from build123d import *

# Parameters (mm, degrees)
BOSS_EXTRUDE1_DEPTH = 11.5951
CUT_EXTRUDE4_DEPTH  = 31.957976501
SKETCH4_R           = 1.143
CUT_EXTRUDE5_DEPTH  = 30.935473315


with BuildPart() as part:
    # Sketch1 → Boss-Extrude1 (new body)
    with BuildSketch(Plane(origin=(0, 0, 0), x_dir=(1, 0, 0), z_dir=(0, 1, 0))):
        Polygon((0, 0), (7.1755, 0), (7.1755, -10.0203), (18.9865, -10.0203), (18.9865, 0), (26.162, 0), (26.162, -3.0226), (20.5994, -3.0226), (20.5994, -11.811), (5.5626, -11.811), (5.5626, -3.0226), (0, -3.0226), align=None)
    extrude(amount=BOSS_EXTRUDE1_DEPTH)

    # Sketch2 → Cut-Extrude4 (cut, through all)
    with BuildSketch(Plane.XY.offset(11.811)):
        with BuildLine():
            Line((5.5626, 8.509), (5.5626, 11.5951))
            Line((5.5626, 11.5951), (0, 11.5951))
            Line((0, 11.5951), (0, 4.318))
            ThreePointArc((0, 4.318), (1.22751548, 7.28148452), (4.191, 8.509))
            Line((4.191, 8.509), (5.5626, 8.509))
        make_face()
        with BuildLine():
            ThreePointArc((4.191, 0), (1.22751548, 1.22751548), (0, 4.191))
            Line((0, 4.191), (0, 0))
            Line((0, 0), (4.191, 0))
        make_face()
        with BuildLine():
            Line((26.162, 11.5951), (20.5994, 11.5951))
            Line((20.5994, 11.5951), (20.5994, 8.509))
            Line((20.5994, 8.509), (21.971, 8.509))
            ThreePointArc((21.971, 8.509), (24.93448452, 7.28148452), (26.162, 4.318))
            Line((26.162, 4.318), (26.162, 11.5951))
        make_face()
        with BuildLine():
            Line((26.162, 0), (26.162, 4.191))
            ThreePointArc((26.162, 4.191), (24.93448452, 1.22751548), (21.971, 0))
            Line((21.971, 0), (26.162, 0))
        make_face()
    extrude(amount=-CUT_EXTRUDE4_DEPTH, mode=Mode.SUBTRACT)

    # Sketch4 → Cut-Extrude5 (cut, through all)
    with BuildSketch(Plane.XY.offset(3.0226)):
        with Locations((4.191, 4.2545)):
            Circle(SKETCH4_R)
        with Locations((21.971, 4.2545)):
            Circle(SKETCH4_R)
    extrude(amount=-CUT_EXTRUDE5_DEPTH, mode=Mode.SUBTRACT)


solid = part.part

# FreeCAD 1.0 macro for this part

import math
import FreeCAD as App
import Part
import Sketcher

V = App.Vector
Q = App.Units.Quantity

doc = App.newDocument("Part")
params = doc.addObject("Spreadsheet::Sheet", "Params")
for row, (alias, value) in enumerate([
    ("sketch1_width", "0.219 in"),
    ("sketch1_width2", "0.592 in"),
    ("sketch1_width3", "0.465 in"),
    ("sketch1_height", "0.119 in"),
    ("sketch1_height2", "0.346 in"),
    ("pad1_length", "0.4565 in"),
    ("sketch2_radius", "0.165 in"),
    ("sketch2_width", "0.219 in"),
    ("sketch3_diameter", "0.09 in"),
], start=1):
    params.set(f"A{row}", alias)
    params.set(f"B{row}", "=" + value)
    params.setAlias(f"B{row}", alias)

body = doc.addObject("PartDesign::Body", "Body")

sketch1 = body.newObject("Sketcher::SketchObject", "Sketch")
sketch1.AttachmentSupport = (doc.getObject("XZ_Plane"), [""])
sketch1.MapMode = "FlatFace"
sketch1.addGeometry(Part.LineSegment(V(7.2, 0, 0), V(0, 0, 0)), False)
sketch1.addGeometry(Part.LineSegment(V(0, 0, 0), V(0, 3, 0)), False)
sketch1.addGeometry(Part.LineSegment(V(0, 3, 0), V(5.6, 3, 0)), False)
sketch1.addGeometry(Part.LineSegment(V(5.6, 3, 0), V(5.6, 11.8, 0)), False)
sketch1.addGeometry(Part.LineSegment(V(5.6, 11.8, 0), V(20.6, 11.8, 0)), False)
sketch1.addGeometry(Part.LineSegment(V(20.6, 11.8, 0), V(20.6, 3, 0)), False)
sketch1.addGeometry(Part.LineSegment(V(20.6, 3, 0), V(26.2, 3, 0)), False)
sketch1.addGeometry(Part.LineSegment(V(26.2, 3, 0), V(26.2, 0, 0)), False)
sketch1.addGeometry(Part.LineSegment(V(26.2, 0, 0), V(19, 0, 0)), False)
sketch1.addGeometry(Part.LineSegment(V(19, 0, 0), V(19, 10, 0)), False)
sketch1.addGeometry(Part.LineSegment(V(19, 10, 0), V(7.2, 10, 0)), False)
sketch1.addGeometry(Part.LineSegment(V(7.2, 10, 0), V(7.2, 0, 0)), False)
sketch1.addConstraint(Sketcher.Constraint("Coincident", 0, 2, 1, 1))
sketch1.addConstraint(Sketcher.Constraint("Coincident", 1, 2, 2, 1))
sketch1.addConstraint(Sketcher.Constraint("Coincident", 2, 2, 3, 1))
sketch1.addConstraint(Sketcher.Constraint("Coincident", 3, 2, 4, 1))
sketch1.addConstraint(Sketcher.Constraint("Coincident", 4, 2, 5, 1))
sketch1.addConstraint(Sketcher.Constraint("Coincident", 5, 2, 6, 1))
sketch1.addConstraint(Sketcher.Constraint("Coincident", 6, 2, 7, 1))
sketch1.addConstraint(Sketcher.Constraint("Coincident", 7, 2, 8, 1))
sketch1.addConstraint(Sketcher.Constraint("Coincident", 8, 2, 9, 1))
sketch1.addConstraint(Sketcher.Constraint("Coincident", 9, 2, 10, 1))
sketch1.addConstraint(Sketcher.Constraint("Coincident", 10, 2, 11, 1))
sketch1.addConstraint(Sketcher.Constraint("Coincident", 11, 2, 0, 1))
sketch1.addConstraint(Sketcher.Constraint("Horizontal", 0))
sketch1.addConstraint(Sketcher.Constraint("Vertical", 1))
sketch1.addConstraint(Sketcher.Constraint("Horizontal", 2))
sketch1.addConstraint(Sketcher.Constraint("Vertical", 3))
sketch1.addConstraint(Sketcher.Constraint("Horizontal", 4))
sketch1.addConstraint(Sketcher.Constraint("Vertical", 5))
sketch1.addConstraint(Sketcher.Constraint("Horizontal", 6))
sketch1.addConstraint(Sketcher.Constraint("Vertical", 7))
sketch1.addConstraint(Sketcher.Constraint("Horizontal", 8))
sketch1.addConstraint(Sketcher.Constraint("Vertical", 9))
sketch1.addConstraint(Sketcher.Constraint("Horizontal", 10))
sketch1.addConstraint(Sketcher.Constraint("Vertical", 11))
sketch1.addConstraint(Sketcher.Constraint("Coincident", 0, 2, -1, 1))
sketch1.addConstraint(Sketcher.Constraint("PointOnObject", 7, 2, -1))
sketch1.addConstraint(Sketcher.Constraint("Horizontal", 2, 2, 5, 2))
sketch1.addConstraint(Sketcher.Constraint("Equal", 2, 6))
sketch1.addConstraint(Sketcher.Constraint("Equal", 0, 8))
sketch1.addConstraint(Sketcher.Constraint("DistanceX", 2, 1, 2, 2, Q("0.219 in")))
sketch1.addConstraint(Sketcher.Constraint("DistanceX", 4, 1, 4, 2, Q("0.592 in")))
sketch1.addConstraint(Sketcher.Constraint("DistanceX", 10, 2, 10, 1, Q("0.465 in")))
sketch1.addConstraint(Sketcher.Constraint("DistanceY", 1, 1, 1, 2, Q("0.119 in")))
sketch1.addConstraint(Sketcher.Constraint("DistanceY", 3, 1, 3, 2, Q("0.346 in")))
sketch1.addConstraint(Sketcher.Constraint("DistanceY", 9, 1, 9, 2, Q("0.3945 in")))
sketch1.setExpression("Constraints[29]", "Params.sketch1_width")
sketch1.setExpression("Constraints[30]", "Params.sketch1_width2")
sketch1.setExpression("Constraints[31]", "Params.sketch1_width3")
sketch1.setExpression("Constraints[32]", "Params.sketch1_height")
sketch1.setExpression("Constraints[33]", "Params.sketch1_height2")
pad1 = body.newObject("PartDesign::Pad", "Pad")
pad1.Profile = sketch1
pad1.setExpression("Length", "Params.pad1_length")
pad1.Reversed = True

sketch2 = body.newObject("Sketcher::SketchObject", "Sketch001")
sketch2.AttachmentSupport = (doc.getObject("XY_Plane"), [""])
sketch2.MapMode = "FlatFace"
sketch2.AttachmentOffset = App.Placement(V(0, 0, 0.465 * 25.4), App.Rotation())
sketch2.addGeometry(Part.LineSegment(V(5.6, 8.5, 0), V(5.6, 11.6, 0)), False)
sketch2.addGeometry(Part.LineSegment(V(5.6, 11.6, 0), V(0, 11.6, 0)), False)
sketch2.addGeometry(Part.LineSegment(V(0, 11.6, 0), V(0, 4.3, 0)), False)
sketch2.addGeometry(Part.ArcOfCircle(Part.Circle(V(4.2, 4.3, 0), V(0, 0, 1), 4.2), math.radians(90), math.radians(180)), False)
sketch2.addGeometry(Part.LineSegment(V(4.2, 8.5, 0), V(5.6, 8.5, 0)), False)
sketch2.addGeometry(Part.ArcOfCircle(Part.Circle(V(4.2, 4.2, 0), V(0, 0, 1), 4.2), math.radians(180), math.radians(270)), False)
sketch2.addGeometry(Part.LineSegment(V(0, 4.2, 0), V(0, 0, 0)), False)
sketch2.addGeometry(Part.LineSegment(V(0, 0, 0), V(4.2, 0, 0)), False)
sketch2.addGeometry(Part.LineSegment(V(26.2, 11.6, 0), V(20.6, 11.6, 0)), False)
sketch2.addGeometry(Part.LineSegment(V(20.6, 11.6, 0), V(20.6, 8.5, 0)), False)
sketch2.addGeometry(Part.LineSegment(V(20.6, 8.5, 0), V(22, 8.5, 0)), False)
sketch2.addGeometry(Part.ArcOfCircle(Part.Circle(V(22, 4.3, 0), V(0, 0, 1), 4.2), math.radians(0), math.radians(90)), False)
sketch2.addGeometry(Part.LineSegment(V(26.2, 4.3, 0), V(26.2, 11.6, 0)), False)
sketch2.addGeometry(Part.LineSegment(V(26.2, 0, 0), V(26.2, 4.2, 0)), False)
sketch2.addGeometry(Part.ArcOfCircle(Part.Circle(V(22, 4.2, 0), V(0, 0, 1), 4.2), math.radians(-90), math.radians(0)), False)
sketch2.addGeometry(Part.LineSegment(V(22, 0, 0), V(26.2, 0, 0)), False)
sketch2.addConstraint(Sketcher.Constraint("Coincident", 0, 2, 1, 1))
sketch2.addConstraint(Sketcher.Constraint("Coincident", 1, 2, 2, 1))
sketch2.addConstraint(Sketcher.Constraint("Tangent", 2, 2, 3, 2))
sketch2.addConstraint(Sketcher.Constraint("Tangent", 3, 1, 4, 1))
sketch2.addConstraint(Sketcher.Constraint("Coincident", 4, 2, 0, 1))
sketch2.addConstraint(Sketcher.Constraint("Tangent", 5, 1, 6, 1))
sketch2.addConstraint(Sketcher.Constraint("Coincident", 6, 2, 7, 1))
sketch2.addConstraint(Sketcher.Constraint("Tangent", 7, 2, 5, 2))
sketch2.addConstraint(Sketcher.Constraint("Coincident", 8, 2, 9, 1))
sketch2.addConstraint(Sketcher.Constraint("Coincident", 9, 2, 10, 1))
sketch2.addConstraint(Sketcher.Constraint("Tangent", 10, 2, 11, 2))
sketch2.addConstraint(Sketcher.Constraint("Tangent", 11, 1, 12, 1))
sketch2.addConstraint(Sketcher.Constraint("Coincident", 12, 2, 8, 1))
sketch2.addConstraint(Sketcher.Constraint("Tangent", 13, 2, 14, 2))
sketch2.addConstraint(Sketcher.Constraint("Tangent", 14, 1, 15, 1))
sketch2.addConstraint(Sketcher.Constraint("Coincident", 15, 2, 13, 1))
sketch2.addConstraint(Sketcher.Constraint("Vertical", 0))
sketch2.addConstraint(Sketcher.Constraint("Horizontal", 1))
sketch2.addConstraint(Sketcher.Constraint("Vertical", 2))
sketch2.addConstraint(Sketcher.Constraint("Horizontal", 4))
sketch2.addConstraint(Sketcher.Constraint("Vertical", 6))
sketch2.addConstraint(Sketcher.Constraint("Horizontal", 7))
sketch2.addConstraint(Sketcher.Constraint("Horizontal", 8))
sketch2.addConstraint(Sketcher.Constraint("Vertical", 9))
sketch2.addConstraint(Sketcher.Constraint("Horizontal", 10))
sketch2.addConstraint(Sketcher.Constraint("Vertical", 12))
sketch2.addConstraint(Sketcher.Constraint("Vertical", 13))
sketch2.addConstraint(Sketcher.Constraint("Horizontal", 15))
sketch2.addConstraint(Sketcher.Constraint("Coincident", 6, 2, -1, 1))
sketch2.addConstraint(Sketcher.Constraint("Equal", 3, 5))
sketch2.addConstraint(Sketcher.Constraint("Equal", 5, 11))
sketch2.addConstraint(Sketcher.Constraint("Equal", 11, 14))
sketch2.addConstraint(Sketcher.Constraint("PointOnObject", 1, 2, -2))
sketch2.addConstraint(Sketcher.Constraint("PointOnObject", 14, 1, -1))
sketch2.addConstraint(Sketcher.Constraint("Horizontal", 3, 3, 11, 3))
sketch2.addConstraint(Sketcher.Constraint("Horizontal", 1, 2, 8, 2))
sketch2.addConstraint(Sketcher.Constraint("Vertical", 11, 3, 14, 3))
sketch2.addConstraint(Sketcher.Constraint("Equal", 1, 8))
sketch2.addConstraint(Sketcher.Constraint("Radius", 3, Q("0.165 in")))
sketch2.addConstraint(Sketcher.Constraint("DistanceX", 3, 3, 11, 3, Q("0.7 in")))
sketch2.addConstraint(Sketcher.Constraint("DistanceX", 1, 2, 1, 1, Q("0.219 in")))
sketch2.addConstraint(Sketcher.Constraint("DistanceY", -1, 1, 3, 3, Q("0.17 in")))
sketch2.addConstraint(Sketcher.Constraint("DistanceY", 0, 1, 0, 2, Q("0.1215 in")))
sketch2.setExpression("Constraints[38]", "Params.sketch2_radius")
sketch2.setExpression("Constraints[40]", "Params.sketch2_width")
pocket1 = body.newObject("PartDesign::Pocket", "Pocket")
pocket1.Profile = sketch2
pocket1.Type = "ThroughAll"

sketch3 = body.newObject("Sketcher::SketchObject", "Sketch002")
sketch3.AttachmentSupport = (doc.getObject("XY_Plane"), [""])
sketch3.MapMode = "FlatFace"
sketch3.AttachmentOffset = App.Placement(V(0, 0, 0.119 * 25.4), App.Rotation())
sketch3.addGeometry(Part.Circle(V(4.2, 4.3, 0), V(0, 0, 1), 1.1), False)
sketch3.addGeometry(Part.Circle(V(22, 4.3, 0), V(0, 0, 1), 1.1), False)
sketch3.addConstraint(Sketcher.Constraint("Equal", 0, 1))
sketch3.addConstraint(Sketcher.Constraint("Horizontal", 0, 3, 1, 3))
sketch3.addConstraint(Sketcher.Constraint("Diameter", 0, Q("0.09 in")))
sketch3.addConstraint(Sketcher.Constraint("DistanceX", 0, 3, 1, 3, Q("0.7 in")))
sketch3.addConstraint(Sketcher.Constraint("DistanceX", -1, 1, 0, 3, Q("0.165 in")))
sketch3.addConstraint(Sketcher.Constraint("DistanceY", -1, 1, 0, 3, Q("0.1675 in")))
sketch3.setExpression("Constraints[2]", "Params.sketch3_diameter")
pocket2 = body.newObject("PartDesign::Pocket", "Pocket001")
pocket2.Profile = sketch3
pocket2.Type = "ThroughAll"

doc.recompute()
